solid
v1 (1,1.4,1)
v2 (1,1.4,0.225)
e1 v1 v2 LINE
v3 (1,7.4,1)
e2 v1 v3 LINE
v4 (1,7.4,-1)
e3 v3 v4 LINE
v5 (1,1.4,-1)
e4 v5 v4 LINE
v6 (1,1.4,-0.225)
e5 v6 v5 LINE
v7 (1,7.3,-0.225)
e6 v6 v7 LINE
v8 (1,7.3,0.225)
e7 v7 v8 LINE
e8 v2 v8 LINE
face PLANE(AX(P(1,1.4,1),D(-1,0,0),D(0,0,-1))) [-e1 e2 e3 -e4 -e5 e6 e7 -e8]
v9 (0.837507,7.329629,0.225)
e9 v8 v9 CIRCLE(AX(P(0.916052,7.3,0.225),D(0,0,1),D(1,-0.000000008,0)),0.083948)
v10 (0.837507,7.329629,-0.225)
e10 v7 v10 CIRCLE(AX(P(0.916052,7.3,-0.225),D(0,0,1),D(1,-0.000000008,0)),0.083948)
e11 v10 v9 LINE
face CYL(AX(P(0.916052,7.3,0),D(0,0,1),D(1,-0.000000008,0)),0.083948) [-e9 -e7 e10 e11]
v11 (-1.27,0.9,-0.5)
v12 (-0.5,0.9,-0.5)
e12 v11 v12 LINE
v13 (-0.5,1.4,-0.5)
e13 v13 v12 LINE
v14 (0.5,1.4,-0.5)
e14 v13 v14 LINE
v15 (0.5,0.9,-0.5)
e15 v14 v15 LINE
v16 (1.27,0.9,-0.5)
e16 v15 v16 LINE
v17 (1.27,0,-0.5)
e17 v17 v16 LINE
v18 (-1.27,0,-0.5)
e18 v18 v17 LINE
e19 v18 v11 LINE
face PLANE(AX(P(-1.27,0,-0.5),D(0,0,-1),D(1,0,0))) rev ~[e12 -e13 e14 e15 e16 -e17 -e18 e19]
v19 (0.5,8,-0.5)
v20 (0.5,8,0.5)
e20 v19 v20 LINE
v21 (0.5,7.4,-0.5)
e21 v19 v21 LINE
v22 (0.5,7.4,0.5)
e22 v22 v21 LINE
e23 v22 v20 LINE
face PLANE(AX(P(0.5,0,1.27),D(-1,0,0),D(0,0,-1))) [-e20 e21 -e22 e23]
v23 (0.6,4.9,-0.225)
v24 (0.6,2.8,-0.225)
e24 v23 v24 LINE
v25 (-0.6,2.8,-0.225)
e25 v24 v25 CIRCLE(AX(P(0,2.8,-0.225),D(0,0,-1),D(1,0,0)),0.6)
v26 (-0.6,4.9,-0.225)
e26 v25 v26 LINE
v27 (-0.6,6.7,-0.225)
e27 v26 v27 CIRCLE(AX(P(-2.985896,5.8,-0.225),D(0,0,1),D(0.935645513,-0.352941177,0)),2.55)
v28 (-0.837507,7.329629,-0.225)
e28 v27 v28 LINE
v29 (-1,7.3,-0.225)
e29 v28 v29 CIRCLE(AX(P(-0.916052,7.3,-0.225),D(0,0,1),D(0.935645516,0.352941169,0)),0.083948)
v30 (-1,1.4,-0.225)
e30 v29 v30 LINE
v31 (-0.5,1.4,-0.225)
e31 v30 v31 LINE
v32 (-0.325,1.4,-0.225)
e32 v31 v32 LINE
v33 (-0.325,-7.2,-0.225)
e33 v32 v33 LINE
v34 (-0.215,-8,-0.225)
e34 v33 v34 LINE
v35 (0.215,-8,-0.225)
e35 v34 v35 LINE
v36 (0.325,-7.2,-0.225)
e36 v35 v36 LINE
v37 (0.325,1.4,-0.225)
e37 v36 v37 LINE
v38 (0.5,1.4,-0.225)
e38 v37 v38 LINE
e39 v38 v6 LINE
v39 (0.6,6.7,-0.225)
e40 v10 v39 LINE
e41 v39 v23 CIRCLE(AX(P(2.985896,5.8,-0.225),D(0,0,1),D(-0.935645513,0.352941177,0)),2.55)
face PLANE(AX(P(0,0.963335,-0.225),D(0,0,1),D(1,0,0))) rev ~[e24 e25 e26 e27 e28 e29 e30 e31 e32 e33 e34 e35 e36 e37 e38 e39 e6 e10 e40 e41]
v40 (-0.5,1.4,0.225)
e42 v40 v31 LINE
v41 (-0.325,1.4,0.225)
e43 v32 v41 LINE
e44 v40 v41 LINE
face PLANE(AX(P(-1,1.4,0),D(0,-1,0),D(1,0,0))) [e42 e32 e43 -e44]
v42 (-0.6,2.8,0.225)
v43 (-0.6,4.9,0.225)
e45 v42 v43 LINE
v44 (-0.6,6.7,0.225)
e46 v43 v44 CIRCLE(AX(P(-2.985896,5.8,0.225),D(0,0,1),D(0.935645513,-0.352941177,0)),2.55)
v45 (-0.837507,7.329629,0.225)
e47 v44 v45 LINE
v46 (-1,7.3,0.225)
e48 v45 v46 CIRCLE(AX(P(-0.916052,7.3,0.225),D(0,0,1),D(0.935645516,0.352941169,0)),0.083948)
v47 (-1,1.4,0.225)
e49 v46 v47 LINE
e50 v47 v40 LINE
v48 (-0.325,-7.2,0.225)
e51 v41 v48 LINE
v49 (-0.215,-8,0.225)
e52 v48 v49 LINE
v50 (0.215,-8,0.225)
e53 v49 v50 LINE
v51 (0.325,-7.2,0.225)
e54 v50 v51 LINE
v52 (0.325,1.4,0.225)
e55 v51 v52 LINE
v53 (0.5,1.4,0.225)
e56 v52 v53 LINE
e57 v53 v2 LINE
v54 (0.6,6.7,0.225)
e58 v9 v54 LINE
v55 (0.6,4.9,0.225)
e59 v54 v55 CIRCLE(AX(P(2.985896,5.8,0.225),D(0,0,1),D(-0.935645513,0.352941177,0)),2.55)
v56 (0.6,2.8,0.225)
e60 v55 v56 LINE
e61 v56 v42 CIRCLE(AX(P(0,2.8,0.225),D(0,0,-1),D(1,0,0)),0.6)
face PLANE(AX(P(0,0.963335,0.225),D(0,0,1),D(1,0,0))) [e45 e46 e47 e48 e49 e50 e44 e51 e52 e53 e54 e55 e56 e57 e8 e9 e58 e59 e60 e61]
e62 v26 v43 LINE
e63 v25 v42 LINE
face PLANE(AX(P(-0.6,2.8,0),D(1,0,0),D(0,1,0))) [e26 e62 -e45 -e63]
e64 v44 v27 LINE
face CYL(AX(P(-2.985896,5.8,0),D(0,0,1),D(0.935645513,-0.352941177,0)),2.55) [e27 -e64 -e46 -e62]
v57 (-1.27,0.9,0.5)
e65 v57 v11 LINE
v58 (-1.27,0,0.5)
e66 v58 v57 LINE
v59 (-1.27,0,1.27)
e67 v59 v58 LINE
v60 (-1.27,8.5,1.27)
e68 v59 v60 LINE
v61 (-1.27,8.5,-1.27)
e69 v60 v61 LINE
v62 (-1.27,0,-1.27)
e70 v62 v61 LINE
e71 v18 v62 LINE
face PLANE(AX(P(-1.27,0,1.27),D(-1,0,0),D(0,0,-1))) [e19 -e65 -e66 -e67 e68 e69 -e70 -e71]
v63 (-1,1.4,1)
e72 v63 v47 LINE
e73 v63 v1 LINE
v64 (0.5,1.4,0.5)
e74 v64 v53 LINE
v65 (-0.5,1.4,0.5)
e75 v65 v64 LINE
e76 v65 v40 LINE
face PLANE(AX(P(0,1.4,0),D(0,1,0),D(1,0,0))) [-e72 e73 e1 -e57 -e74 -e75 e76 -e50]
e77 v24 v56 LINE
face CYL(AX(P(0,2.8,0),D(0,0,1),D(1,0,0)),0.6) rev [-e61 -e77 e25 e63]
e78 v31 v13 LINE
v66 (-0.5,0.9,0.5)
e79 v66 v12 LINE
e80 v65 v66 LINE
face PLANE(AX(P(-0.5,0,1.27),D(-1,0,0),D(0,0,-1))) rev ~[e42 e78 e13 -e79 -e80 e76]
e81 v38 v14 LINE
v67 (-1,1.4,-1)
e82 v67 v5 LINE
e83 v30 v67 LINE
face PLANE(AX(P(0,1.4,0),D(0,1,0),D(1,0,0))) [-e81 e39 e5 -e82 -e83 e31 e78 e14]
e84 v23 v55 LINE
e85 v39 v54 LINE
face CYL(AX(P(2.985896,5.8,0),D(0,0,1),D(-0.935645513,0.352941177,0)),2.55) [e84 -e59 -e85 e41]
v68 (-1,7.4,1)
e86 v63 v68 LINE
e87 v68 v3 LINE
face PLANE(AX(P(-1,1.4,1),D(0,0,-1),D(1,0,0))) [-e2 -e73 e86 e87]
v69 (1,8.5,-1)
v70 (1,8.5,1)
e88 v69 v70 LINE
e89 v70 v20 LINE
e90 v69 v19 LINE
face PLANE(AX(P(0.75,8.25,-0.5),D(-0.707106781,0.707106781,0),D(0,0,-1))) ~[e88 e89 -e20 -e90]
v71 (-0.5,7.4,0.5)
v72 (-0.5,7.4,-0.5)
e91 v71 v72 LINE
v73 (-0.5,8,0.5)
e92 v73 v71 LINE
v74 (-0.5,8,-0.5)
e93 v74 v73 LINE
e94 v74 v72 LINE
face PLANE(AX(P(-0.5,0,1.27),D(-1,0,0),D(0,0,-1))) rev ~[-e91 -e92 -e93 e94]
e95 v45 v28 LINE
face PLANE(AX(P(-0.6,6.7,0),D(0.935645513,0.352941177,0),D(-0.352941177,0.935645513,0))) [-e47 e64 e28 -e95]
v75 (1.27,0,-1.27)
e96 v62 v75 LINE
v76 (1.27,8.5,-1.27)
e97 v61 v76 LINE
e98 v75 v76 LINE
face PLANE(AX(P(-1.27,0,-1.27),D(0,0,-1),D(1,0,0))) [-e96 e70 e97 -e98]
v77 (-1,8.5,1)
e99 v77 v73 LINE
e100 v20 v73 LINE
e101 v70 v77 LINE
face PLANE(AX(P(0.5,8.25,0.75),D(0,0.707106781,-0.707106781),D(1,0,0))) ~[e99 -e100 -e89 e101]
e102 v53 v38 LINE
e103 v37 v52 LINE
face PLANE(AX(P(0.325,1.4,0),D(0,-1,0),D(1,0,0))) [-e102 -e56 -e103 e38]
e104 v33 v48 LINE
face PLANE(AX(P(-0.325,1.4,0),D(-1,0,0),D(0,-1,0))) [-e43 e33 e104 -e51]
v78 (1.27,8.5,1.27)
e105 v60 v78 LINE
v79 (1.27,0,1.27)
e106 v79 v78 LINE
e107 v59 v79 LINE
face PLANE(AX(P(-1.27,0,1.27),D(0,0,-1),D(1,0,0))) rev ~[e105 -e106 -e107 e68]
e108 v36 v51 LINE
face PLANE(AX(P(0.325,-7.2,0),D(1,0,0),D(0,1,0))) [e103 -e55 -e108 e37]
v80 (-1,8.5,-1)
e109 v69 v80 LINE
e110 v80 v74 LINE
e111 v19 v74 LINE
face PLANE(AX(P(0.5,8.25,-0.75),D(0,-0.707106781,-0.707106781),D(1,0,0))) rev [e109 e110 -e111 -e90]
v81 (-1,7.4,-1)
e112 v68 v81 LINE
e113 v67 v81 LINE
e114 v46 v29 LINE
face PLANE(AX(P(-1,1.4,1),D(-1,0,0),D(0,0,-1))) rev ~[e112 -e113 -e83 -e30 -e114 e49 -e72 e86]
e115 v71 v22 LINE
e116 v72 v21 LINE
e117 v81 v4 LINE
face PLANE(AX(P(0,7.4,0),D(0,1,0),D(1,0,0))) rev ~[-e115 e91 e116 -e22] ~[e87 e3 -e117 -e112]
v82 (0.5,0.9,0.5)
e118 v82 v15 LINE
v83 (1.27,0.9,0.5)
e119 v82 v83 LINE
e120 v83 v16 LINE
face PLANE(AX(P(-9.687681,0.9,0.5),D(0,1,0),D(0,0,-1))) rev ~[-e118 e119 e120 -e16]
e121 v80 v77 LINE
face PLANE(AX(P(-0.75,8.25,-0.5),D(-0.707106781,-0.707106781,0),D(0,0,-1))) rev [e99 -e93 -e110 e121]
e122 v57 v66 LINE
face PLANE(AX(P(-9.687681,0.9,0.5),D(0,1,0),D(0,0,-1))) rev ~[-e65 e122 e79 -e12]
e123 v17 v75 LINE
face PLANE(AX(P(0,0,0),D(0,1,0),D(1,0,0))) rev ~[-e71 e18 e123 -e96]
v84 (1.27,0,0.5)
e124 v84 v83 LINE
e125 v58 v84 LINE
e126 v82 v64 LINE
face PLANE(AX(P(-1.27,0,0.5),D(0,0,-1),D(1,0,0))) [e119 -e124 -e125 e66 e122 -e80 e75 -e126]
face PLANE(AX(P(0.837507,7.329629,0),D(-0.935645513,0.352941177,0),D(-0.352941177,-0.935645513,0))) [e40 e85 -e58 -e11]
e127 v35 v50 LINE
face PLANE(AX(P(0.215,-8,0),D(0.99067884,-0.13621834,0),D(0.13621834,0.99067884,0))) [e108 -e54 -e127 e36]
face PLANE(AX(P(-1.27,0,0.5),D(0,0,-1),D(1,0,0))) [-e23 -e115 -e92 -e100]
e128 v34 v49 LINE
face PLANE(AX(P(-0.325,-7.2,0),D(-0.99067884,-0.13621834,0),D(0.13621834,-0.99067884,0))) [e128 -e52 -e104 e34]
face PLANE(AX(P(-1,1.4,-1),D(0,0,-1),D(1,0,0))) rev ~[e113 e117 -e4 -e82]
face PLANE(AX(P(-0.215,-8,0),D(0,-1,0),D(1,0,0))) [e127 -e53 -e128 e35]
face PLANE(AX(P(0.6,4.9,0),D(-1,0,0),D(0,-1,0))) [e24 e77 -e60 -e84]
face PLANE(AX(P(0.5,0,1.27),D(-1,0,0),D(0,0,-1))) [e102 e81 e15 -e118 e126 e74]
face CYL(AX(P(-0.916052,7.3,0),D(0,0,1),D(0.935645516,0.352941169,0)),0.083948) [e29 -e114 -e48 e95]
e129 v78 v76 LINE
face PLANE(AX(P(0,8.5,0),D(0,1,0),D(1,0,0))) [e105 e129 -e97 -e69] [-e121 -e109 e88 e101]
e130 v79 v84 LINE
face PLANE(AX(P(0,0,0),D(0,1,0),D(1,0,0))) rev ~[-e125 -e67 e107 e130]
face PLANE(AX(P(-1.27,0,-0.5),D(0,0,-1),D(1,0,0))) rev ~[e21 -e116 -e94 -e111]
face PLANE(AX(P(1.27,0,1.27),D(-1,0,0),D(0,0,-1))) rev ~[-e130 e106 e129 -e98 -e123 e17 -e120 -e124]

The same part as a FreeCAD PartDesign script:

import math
import FreeCAD as App
import Part
import Sketcher
Q = App.Units.Quantity


def edges_at(feature, points):
    """Names of the edges that pass closest to the given points."""
    edges = feature.Shape.Edges
    near = lambda p: min(range(len(edges)), key=lambda i: edges[i].distToShape(Part.Vertex(*p))[0])
    return sorted({f"Edge{near(p) + 1}" for p in points})


def faces_at(feature, points):
    """Names of the faces that lie closest to the given points."""
    faces = feature.Shape.Faces
    near = lambda p: min(range(len(faces)), key=lambda i: faces[i].distToShape(Part.Vertex(*p))[0])
    return sorted({f"Face{near(p) + 1}" for p in points})


def add_polygon(sketch, points):
    """Adds a closed chain of lines whose ends are joined by coincident constraints."""
    first, n = sketch.GeometryCount, len(points)
    for a, b in zip(points, points[1:] + points[:1]):
        sketch.addGeometry(Part.LineSegment(App.Vector(*a, 0), App.Vector(*b, 0)), False)
    for i in range(n):
        sketch.addConstraint(Sketcher.Constraint("Coincident", first + i, 2, first + (i + 1) % n, 1))

doc = App.newDocument("Part")
body = doc.addObject("PartDesign::Body", "Body")

# Sketch on XZ plane
sketch1 = body.newObject("Sketcher::SketchObject", "Sketch")
sketch1.AttachmentSupport = (doc.getObject("XZ_Plane"), [""])
sketch1.MapMode = "FlatFace"
add_polygon(sketch1, [(-1.27, -1.27), (-1.27, 1.27), (1.27, 1.27), (1.27, -1.27)])  # lines 0-3
sketch1.addConstraint(Sketcher.Constraint("Vertical", 0))
sketch1.addConstraint(Sketcher.Constraint("Horizontal", 1))
sketch1.addConstraint(Sketcher.Constraint("Vertical", 2))
sketch1.addConstraint(Sketcher.Constraint("Horizontal", 3))
sketch1.addConstraint(Sketcher.Constraint("Symmetric", 0, 2, 2, 2, -1, 1))
sketch1.addConstraint(Sketcher.Constraint("Equal", 3, 0))
sketch1.addConstraint(Sketcher.Constraint("DistanceX", 1, 1, 1, 2, Q("2.54 mm")))
pad1 = body.newObject("PartDesign::Pad", "Pad")
pad1.Profile = sketch1
pad1.Length = 8.5
pad1.Reversed = True
doc.recompute()

thickness = body.newObject("PartDesign::Thickness", "Thickness")
thickness.Base = (pad1, faces_at(pad1, [(0, 8.5, 0)]))
thickness.Value = 0.77
thickness.Reversed = True
thickness.Join = "Intersection"
doc.recompute()

chamfer = body.newObject("PartDesign::Chamfer", "Chamfer")
chamfer.Base = (thickness, edges_at(thickness, [
    (-0.5, 8.5, 0),
    (0, 8.5, 0.5),
    (0.5, 8.5, 0),
    (0, 8.5, -0.5),
]))
chamfer.Size = 0.5

# Sketch on YZ plane
sketch2 = body.newObject("Sketcher::SketchObject", "Sketch001")
sketch2.AttachmentSupport = (doc.getObject("YZ_Plane"), [""])
sketch2.MapMode = "FlatFace"
add_polygon(sketch2, [(0.9, 0.5), (0, 0.5), (0, -0.5), (0.9, -0.5)])  # lines 0-3
sketch2.addConstraint(Sketcher.Constraint("Horizontal", 0))
sketch2.addConstraint(Sketcher.Constraint("Vertical", 1))
sketch2.addConstraint(Sketcher.Constraint("Horizontal", 2))
sketch2.addConstraint(Sketcher.Constraint("Vertical", 3))
sketch2.addConstraint(Sketcher.Constraint("Symmetric", 0, 2, 1, 2, -1, 1))
sketch2.addConstraint(Sketcher.Constraint("DistanceY", 1, 2, 1, 1, Q("1 mm")))
sketch2.addConstraint(Sketcher.Constraint("DistanceX", 0, 2, 0, 1, Q("0.9 mm")))
pocket1 = body.newObject("PartDesign::Pocket", "Pocket")
pocket1.Profile = sketch2
pocket1.Type = "ThroughAll"
pocket1.Midplane = True

# Sketch on XZ plane
sketch3 = body.newObject("Sketcher::SketchObject", "Sketch002")
sketch3.AttachmentSupport = (doc.getObject("XZ_Plane"), [""])
sketch3.MapMode = "FlatFace"
sketch3.AttachmentOffset = App.Placement(App.Vector(0, 0, -1.4), App.Rotation())
add_polygon(sketch3, [(-1, -1), (-1, 1), (1, 1), (1, -1)])  # lines 0-3
sketch3.addConstraint(Sketcher.Constraint("Vertical", 0))
sketch3.addConstraint(Sketcher.Constraint("Horizontal", 1))
sketch3.addConstraint(Sketcher.Constraint("Vertical", 2))
sketch3.addConstraint(Sketcher.Constraint("Horizontal", 3))
sketch3.addConstraint(Sketcher.Constraint("Symmetric", 0, 2, 2, 2, -1, 1))
sketch3.addConstraint(Sketcher.Constraint("Equal", 3, 0))
sketch3.addConstraint(Sketcher.Constraint("DistanceX", 1, 1, 1, 2, Q("2 mm")))
pocket2 = body.newObject("PartDesign::Pocket", "Pocket001")
pocket2.Profile = sketch3
pocket2.Length = 6

# Sketch on XY plane
sketch4 = body.newObject("Sketcher::SketchObject", "Sketch003")
sketch4.AttachmentSupport = (doc.getObject("XY_Plane"), [""])
sketch4.MapMode = "FlatFace"
sketch4.addGeometry(Part.LineSegment(App.Vector(-1, 7.3, 0), App.Vector(-1, 1.4, 0)), False)
sketch4.addGeometry(Part.LineSegment(App.Vector(-1, 1.4, 0), App.Vector(-0.325, 1.4, 0)), False)
sketch4.addGeometry(Part.LineSegment(App.Vector(-0.325, 1.4, 0), App.Vector(-0.325, -7.2, 0)), False)
sketch4.addGeometry(Part.LineSegment(App.Vector(-0.325, -7.2, 0), App.Vector(-0.215, -8, 0)), False)
sketch4.addGeometry(Part.LineSegment(App.Vector(-0.215, -8, 0), App.Vector(0.215, -8, 0)), False)
sketch4.addGeometry(Part.LineSegment(App.Vector(0.215, -8, 0), App.Vector(0.325, -7.2, 0)), False)
sketch4.addGeometry(Part.LineSegment(App.Vector(0.325, -7.2, 0), App.Vector(0.325, 1.4, 0)), False)
sketch4.addGeometry(Part.LineSegment(App.Vector(0.325, 1.4, 0), App.Vector(1, 1.4, 0)), False)
sketch4.addGeometry(Part.LineSegment(App.Vector(1, 1.4, 0), App.Vector(1, 7.3, 0)), False)
sketch4.addGeometry(Part.ArcOfCircle(Part.Circle(App.Vector(0.916052, 7.3, 0), App.Vector(0, 0, 1), 0.083948), math.radians(-0.000001), math.radians(159.332684)), False)
sketch4.addGeometry(Part.LineSegment(App.Vector(0.837507, 7.329629, 0), App.Vector(0.6, 6.7, 0)), False)
sketch4.addGeometry(Part.ArcOfCircle(Part.Circle(App.Vector(2.985896, 5.8, 0), App.Vector(0, 0, 1), 2.55), math.radians(159.332683), math.radians(200.667317)), False)
sketch4.addGeometry(Part.LineSegment(App.Vector(0.6, 4.9, 0), App.Vector(0.6, 2.8, 0)), False)
sketch4.addGeometry(Part.ArcOfCircle(Part.Circle(App.Vector(0, 2.8, 0), App.Vector(0, 0, 1), 0.6), math.radians(180), math.radians(360)), False)
sketch4.addGeometry(Part.LineSegment(App.Vector(-0.6, 2.8, 0), App.Vector(-0.6, 4.9, 0)), False)
sketch4.addGeometry(Part.ArcOfCircle(Part.Circle(App.Vector(-2.985896, 5.8, 0), App.Vector(0, 0, 1), 2.55), math.radians(-20.667317), math.radians(20.667317)), False)
sketch4.addGeometry(Part.LineSegment(App.Vector(-0.6, 6.7, 0), App.Vector(-0.837507, 7.329629, 0)), False)
sketch4.addGeometry(Part.ArcOfCircle(Part.Circle(App.Vector(-0.916052, 7.3, 0), App.Vector(0, 0, 1), 0.083948), math.radians(20.667316), math.radians(180.000001)), False)
sketch4.addConstraint(Sketcher.Constraint("Coincident", 0, 2, 1, 1))
sketch4.addConstraint(Sketcher.Constraint("Coincident", 1, 2, 2, 1))
sketch4.addConstraint(Sketcher.Constraint("Coincident", 2, 2, 3, 1))
sketch4.addConstraint(Sketcher.Constraint("Coincident", 3, 2, 4, 1))
sketch4.addConstraint(Sketcher.Constraint("Coincident", 4, 2, 5, 1))
sketch4.addConstraint(Sketcher.Constraint("Coincident", 5, 2, 6, 1))
sketch4.addConstraint(Sketcher.Constraint("Coincident", 6, 2, 7, 1))
sketch4.addConstraint(Sketcher.Constraint("Coincident", 7, 2, 8, 1))
sketch4.addConstraint(Sketcher.Constraint("Tangent", 8, 2, 9, 1))
sketch4.addConstraint(Sketcher.Constraint("Tangent", 9, 2, 10, 1))
sketch4.addConstraint(Sketcher.Constraint("Tangent", 10, 2, 11, 1))
sketch4.addConstraint(Sketcher.Constraint("Coincident", 11, 2, 12, 1))
sketch4.addConstraint(Sketcher.Constraint("Tangent", 12, 2, 13, 2))
sketch4.addConstraint(Sketcher.Constraint("Tangent", 13, 1, 14, 1))
sketch4.addConstraint(Sketcher.Constraint("Coincident", 14, 2, 15, 1))
sketch4.addConstraint(Sketcher.Constraint("Tangent", 15, 2, 16, 1))
sketch4.addConstraint(Sketcher.Constraint("Tangent", 16, 2, 17, 1))
sketch4.addConstraint(Sketcher.Constraint("Tangent", 17, 2, 0, 1))
sketch4.addConstraint(Sketcher.Constraint("Vertical", 0))
sketch4.addConstraint(Sketcher.Constraint("Horizontal", 1))
sketch4.addConstraint(Sketcher.Constraint("Vertical", 2))
sketch4.addConstraint(Sketcher.Constraint("Horizontal", 4))
sketch4.addConstraint(Sketcher.Constraint("Vertical", 6))
sketch4.addConstraint(Sketcher.Constraint("Horizontal", 7))
sketch4.addConstraint(Sketcher.Constraint("Vertical", 8))
sketch4.addConstraint(Sketcher.Constraint("Vertical", 12))
sketch4.addConstraint(Sketcher.Constraint("Vertical", 14))
sketch4.addConstraint(Sketcher.Constraint("Equal", 11, 15))
sketch4.addConstraint(Sketcher.Constraint("Equal", 9, 17))
sketch4.addConstraint(Sketcher.Constraint("Symmetric", 11, 3, 15, 3, -2))
sketch4.addConstraint(Sketcher.Constraint("Symmetric", 9, 3, 17, 3, -2))
sketch4.addConstraint(Sketcher.Constraint("Symmetric", 2, 2, 5, 2, -2))
sketch4.addConstraint(Sketcher.Constraint("PointOnObject", 13, 3, -2))
sketch4.addConstraint(Sketcher.Constraint("Horizontal", 1, 2, 6, 2))
sketch4.addConstraint(Sketcher.Constraint("Vertical", 10, 2, 11, 2))
sketch4.addConstraint(Sketcher.Constraint("Equal", 3, 5))
sketch4.addConstraint(Sketcher.Constraint("Radius", 13, Q("0.6 mm")))
sketch4.addConstraint(Sketcher.Constraint("Radius", 11, Q("2.55 mm")))
sketch4.addConstraint(Sketcher.Constraint("DistanceY", 0, 2, 0, 1, Q("5.9 mm")))
sketch4.addConstraint(Sketcher.Constraint("DistanceY", 2, 2, 2, 1, Q("8.6 mm")))
sketch4.addConstraint(Sketcher.Constraint("DistanceY", 12, 2, 12, 1, Q("2.1 mm")))
sketch4.addConstraint(Sketcher.Constraint("DistanceX", 0, 2, -1, 1, Q("1 mm")))
sketch4.addConstraint(Sketcher.Constraint("DistanceY", 3, 2, -1, 1, Q("8 mm")))
sketch4.addConstraint(Sketcher.Constraint("DistanceY", 13, 3, 11, 3, Q("3 mm")))
sketch4.addConstraint(Sketcher.Constraint("DistanceY", 2, 2, 13, 3, Q("10 mm")))
sketch4.addConstraint(Sketcher.Constraint("DistanceX", 4, 1, 4, 2, Q("0.43 mm")))
sketch4.addConstraint(Sketcher.Constraint("DistanceY", -1, 1, 9, 3, Q("7.3 mm")))
sketch4.addConstraint(Sketcher.Constraint("DistanceX", 1, 1, 1, 2, Q("0.675 mm")))
pad2 = body.newObject("PartDesign::Pad", "Pad001")
pad2.Profile = sketch4
pad2.Length = 0.45
pad2.Midplane = True

doc.recompute()
